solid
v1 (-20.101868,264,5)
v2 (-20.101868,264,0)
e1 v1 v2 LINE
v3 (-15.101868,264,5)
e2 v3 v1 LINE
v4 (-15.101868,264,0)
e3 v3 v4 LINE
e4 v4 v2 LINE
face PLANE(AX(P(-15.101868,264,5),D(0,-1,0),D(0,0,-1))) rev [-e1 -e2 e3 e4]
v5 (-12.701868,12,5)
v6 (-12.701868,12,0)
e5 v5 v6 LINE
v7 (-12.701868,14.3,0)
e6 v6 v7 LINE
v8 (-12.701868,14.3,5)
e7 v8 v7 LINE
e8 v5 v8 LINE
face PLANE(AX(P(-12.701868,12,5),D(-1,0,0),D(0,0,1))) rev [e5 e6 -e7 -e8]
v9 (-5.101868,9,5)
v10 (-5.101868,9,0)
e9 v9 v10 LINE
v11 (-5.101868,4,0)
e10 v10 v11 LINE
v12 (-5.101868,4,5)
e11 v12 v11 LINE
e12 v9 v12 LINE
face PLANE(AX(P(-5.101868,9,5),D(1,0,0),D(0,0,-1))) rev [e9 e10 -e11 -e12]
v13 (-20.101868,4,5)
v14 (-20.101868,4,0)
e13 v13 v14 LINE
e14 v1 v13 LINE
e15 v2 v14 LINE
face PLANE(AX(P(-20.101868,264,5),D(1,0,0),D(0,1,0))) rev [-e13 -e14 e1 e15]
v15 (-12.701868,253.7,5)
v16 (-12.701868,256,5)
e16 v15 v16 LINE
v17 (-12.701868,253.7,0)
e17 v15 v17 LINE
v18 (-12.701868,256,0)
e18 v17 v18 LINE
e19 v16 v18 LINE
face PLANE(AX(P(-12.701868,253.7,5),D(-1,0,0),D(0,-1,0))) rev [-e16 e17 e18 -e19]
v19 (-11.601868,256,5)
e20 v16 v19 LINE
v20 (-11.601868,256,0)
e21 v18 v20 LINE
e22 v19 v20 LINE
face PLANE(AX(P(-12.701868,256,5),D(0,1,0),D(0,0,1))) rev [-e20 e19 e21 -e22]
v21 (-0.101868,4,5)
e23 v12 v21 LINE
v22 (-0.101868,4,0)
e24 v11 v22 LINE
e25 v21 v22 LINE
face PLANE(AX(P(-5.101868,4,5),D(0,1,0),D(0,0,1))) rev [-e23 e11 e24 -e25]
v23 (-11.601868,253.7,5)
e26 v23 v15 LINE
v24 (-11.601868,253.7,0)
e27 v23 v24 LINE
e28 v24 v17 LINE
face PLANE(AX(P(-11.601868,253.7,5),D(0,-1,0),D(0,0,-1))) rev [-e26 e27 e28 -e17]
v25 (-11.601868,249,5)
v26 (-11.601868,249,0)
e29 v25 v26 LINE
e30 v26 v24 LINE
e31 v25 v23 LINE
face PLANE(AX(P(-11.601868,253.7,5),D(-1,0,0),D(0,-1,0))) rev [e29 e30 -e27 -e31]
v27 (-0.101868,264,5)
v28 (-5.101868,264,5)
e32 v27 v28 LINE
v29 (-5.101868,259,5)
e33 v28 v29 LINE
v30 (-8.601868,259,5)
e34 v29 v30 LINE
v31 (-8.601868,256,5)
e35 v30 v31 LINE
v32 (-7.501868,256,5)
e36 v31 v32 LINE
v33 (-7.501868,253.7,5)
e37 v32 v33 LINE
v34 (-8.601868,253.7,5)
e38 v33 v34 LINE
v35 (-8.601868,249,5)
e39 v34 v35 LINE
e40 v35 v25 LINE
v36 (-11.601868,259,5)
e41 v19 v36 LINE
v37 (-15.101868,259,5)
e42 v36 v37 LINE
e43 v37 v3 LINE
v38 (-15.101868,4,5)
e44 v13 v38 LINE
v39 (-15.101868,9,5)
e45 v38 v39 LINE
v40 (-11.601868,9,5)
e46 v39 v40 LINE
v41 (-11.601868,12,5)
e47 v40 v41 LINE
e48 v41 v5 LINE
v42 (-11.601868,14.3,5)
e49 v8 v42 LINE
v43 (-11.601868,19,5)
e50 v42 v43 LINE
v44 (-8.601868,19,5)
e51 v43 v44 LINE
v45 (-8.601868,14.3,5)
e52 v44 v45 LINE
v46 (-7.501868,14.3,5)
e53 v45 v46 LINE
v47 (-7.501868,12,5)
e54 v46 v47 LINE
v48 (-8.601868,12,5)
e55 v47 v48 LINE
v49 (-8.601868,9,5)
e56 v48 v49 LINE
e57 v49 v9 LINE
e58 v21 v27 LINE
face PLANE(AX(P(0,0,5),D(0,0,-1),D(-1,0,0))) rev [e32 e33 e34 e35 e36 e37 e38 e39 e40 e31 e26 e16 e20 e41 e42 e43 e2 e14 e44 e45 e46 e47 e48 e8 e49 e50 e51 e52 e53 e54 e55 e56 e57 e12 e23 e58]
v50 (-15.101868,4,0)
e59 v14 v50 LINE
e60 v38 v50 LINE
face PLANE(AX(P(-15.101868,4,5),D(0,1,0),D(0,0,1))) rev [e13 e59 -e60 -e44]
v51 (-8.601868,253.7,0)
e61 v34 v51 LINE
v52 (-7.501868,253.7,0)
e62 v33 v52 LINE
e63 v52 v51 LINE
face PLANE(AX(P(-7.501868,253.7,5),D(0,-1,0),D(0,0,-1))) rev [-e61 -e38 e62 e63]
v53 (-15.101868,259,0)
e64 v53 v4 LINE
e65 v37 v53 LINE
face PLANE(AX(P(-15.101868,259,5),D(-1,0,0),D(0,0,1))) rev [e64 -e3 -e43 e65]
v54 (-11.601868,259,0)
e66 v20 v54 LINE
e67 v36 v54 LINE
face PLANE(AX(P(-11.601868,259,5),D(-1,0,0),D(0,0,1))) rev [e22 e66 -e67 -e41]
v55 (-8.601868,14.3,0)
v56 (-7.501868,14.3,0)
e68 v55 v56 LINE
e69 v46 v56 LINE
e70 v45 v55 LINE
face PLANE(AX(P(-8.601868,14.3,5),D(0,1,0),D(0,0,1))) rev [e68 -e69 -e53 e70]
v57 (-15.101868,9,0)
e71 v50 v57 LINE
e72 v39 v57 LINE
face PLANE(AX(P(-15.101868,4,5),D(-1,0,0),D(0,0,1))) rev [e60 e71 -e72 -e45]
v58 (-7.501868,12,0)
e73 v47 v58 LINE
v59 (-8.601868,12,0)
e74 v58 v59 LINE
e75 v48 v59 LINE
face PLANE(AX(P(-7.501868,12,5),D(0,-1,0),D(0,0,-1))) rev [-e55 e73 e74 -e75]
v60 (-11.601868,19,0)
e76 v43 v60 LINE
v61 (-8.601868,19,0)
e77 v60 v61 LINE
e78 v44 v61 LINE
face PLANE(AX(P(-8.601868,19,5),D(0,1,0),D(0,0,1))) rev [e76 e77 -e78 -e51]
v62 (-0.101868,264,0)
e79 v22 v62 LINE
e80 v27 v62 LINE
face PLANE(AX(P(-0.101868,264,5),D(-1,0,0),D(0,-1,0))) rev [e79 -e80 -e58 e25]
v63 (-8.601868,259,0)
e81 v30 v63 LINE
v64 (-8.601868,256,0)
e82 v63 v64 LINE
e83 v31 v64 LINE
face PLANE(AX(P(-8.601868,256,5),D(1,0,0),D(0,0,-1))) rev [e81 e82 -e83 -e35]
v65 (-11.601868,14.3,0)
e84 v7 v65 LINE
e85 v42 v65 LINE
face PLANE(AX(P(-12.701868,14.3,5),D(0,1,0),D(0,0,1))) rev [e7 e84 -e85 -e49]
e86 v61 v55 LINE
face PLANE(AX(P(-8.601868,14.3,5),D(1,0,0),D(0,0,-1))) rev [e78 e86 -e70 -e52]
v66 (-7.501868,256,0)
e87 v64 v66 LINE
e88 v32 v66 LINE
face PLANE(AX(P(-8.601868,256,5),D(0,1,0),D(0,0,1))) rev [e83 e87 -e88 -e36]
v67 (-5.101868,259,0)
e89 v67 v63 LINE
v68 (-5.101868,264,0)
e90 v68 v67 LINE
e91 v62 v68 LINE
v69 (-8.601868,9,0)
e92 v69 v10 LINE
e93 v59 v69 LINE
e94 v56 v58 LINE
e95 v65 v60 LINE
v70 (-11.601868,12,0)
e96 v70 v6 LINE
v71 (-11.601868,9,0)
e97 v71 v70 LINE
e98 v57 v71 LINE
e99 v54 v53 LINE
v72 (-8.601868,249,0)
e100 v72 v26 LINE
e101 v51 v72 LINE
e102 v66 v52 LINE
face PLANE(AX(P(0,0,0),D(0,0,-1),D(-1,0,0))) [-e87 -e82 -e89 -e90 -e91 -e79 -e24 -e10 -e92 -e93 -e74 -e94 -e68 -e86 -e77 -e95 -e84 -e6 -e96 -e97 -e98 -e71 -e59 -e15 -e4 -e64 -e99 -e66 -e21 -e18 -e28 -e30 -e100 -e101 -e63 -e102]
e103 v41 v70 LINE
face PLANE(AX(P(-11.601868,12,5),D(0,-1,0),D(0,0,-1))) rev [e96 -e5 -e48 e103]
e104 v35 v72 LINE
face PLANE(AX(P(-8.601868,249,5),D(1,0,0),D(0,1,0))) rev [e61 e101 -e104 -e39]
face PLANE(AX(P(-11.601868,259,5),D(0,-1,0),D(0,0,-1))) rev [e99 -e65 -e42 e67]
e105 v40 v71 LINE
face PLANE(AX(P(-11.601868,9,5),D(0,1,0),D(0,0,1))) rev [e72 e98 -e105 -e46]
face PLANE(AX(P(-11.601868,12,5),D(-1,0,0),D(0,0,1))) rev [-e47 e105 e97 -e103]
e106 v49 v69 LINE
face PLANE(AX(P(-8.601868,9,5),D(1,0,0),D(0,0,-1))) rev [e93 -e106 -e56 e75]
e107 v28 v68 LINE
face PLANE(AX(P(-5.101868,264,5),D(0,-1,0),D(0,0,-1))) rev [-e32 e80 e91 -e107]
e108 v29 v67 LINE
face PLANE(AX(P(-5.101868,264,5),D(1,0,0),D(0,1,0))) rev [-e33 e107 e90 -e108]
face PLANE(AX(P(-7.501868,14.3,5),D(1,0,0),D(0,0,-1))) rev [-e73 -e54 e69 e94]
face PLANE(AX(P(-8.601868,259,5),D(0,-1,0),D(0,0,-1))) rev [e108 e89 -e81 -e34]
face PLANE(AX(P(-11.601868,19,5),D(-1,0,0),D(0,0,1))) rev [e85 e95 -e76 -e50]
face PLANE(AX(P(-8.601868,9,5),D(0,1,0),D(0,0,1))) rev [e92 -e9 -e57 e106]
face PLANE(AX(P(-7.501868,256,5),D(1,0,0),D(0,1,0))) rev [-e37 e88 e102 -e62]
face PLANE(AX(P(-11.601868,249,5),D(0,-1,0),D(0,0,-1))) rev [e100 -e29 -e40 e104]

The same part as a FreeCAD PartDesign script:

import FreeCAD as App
import Part
import Sketcher

V = App.Vector

doc = App.newDocument("Part")
body = doc.addObject("PartDesign::Body", "Body")

sketch1 = body.newObject("Sketcher::SketchObject", "Sketch")
sketch1.AttachmentSupport = (doc.getObject("XY_Plane"), [""])
sketch1.MapMode = "FlatFace"
sketch1.addGeometry([
    Part.LineSegment(V(-15.1, 9, 0), V(-11.6, 9, 0)),
    Part.LineSegment(V(-11.6, 9, 0), V(-11.6, 12, 0)),
    Part.LineSegment(V(-11.6, 12, 0), V(-12.7, 12, 0)),
    Part.LineSegment(V(-12.7, 12, 0), V(-12.7, 14.3, 0)),
    Part.LineSegment(V(-12.7, 14.3, 0), V(-11.6, 14.3, 0)),
    Part.LineSegment(V(-11.6, 14.3, 0), V(-11.6, 19, 0)),
    Part.LineSegment(V(-11.6, 19, 0), V(-8.6, 19, 0)),
    Part.LineSegment(V(-8.6, 19, 0), V(-8.6, 14.3, 0)),
    Part.LineSegment(V(-8.6, 14.3, 0), V(-7.5, 14.3, 0)),
    Part.LineSegment(V(-7.5, 14.3, 0), V(-7.5, 12, 0)),
    Part.LineSegment(V(-7.5, 12, 0), V(-8.6, 12, 0)),
    Part.LineSegment(V(-8.6, 12, 0), V(-8.6, 9, 0)),
    Part.LineSegment(V(-8.6, 9, 0), V(-5.1, 9, 0)),
    Part.LineSegment(V(-5.1, 9, 0), V(-5.1, 4, 0)),
    Part.LineSegment(V(-5.1, 4, 0), V(-0.1, 4, 0)),
    Part.LineSegment(V(-0.1, 4, 0), V(-0.1, 264, 0)),
    Part.LineSegment(V(-0.1, 264, 0), V(-5.1, 264, 0)),
    Part.LineSegment(V(-5.1, 264, 0), V(-5.1, 259, 0)),
    Part.LineSegment(V(-5.1, 259, 0), V(-8.6, 259, 0)),
    Part.LineSegment(V(-8.6, 259, 0), V(-8.6, 256, 0)),
    Part.LineSegment(V(-8.6, 256, 0), V(-7.5, 256, 0)),
    Part.LineSegment(V(-7.5, 256, 0), V(-7.5, 253.7, 0)),
    Part.LineSegment(V(-7.5, 253.7, 0), V(-8.6, 253.7, 0)),
    Part.LineSegment(V(-8.6, 253.7, 0), V(-8.6, 249, 0)),
    Part.LineSegment(V(-8.6, 249, 0), V(-11.6, 249, 0)),
    Part.LineSegment(V(-11.6, 249, 0), V(-11.6, 253.7, 0)),
    Part.LineSegment(V(-11.6, 253.7, 0), V(-12.7, 253.7, 0)),
    Part.LineSegment(V(-12.7, 253.7, 0), V(-12.7, 256, 0)),
    Part.LineSegment(V(-12.7, 256, 0), V(-11.6, 256, 0)),
    Part.LineSegment(V(-11.6, 256, 0), V(-11.6, 259, 0)),
    Part.LineSegment(V(-11.6, 259, 0), V(-15.1, 259, 0)),
    Part.LineSegment(V(-15.1, 259, 0), V(-15.1, 264, 0)),
    Part.LineSegment(V(-15.1, 264, 0), V(-20.1, 264, 0)),
    Part.LineSegment(V(-20.1, 264, 0), V(-20.1, 4, 0)),
    Part.LineSegment(V(-20.1, 4, 0), V(-15.1, 4, 0)),
    Part.LineSegment(V(-15.1, 4, 0), V(-15.1, 9, 0)),
], False)
sketch1.addConstraint([
    Sketcher.Constraint("Coincident", 0, 2, 1, 1),
    Sketcher.Constraint("Coincident", 1, 2, 2, 1),
    Sketcher.Constraint("Coincident", 2, 2, 3, 1),
    Sketcher.Constraint("Coincident", 3, 2, 4, 1),
    Sketcher.Constraint("Coincident", 4, 2, 5, 1),
    Sketcher.Constraint("Coincident", 5, 2, 6, 1),
    Sketcher.Constraint("Coincident", 6, 2, 7, 1),
    Sketcher.Constraint("Coincident", 7, 2, 8, 1),
    Sketcher.Constraint("Coincident", 8, 2, 9, 1),
    Sketcher.Constraint("Coincident", 9, 2, 10, 1),
    Sketcher.Constraint("Coincident", 10, 2, 11, 1),
    Sketcher.Constraint("Coincident", 11, 2, 12, 1),
    Sketcher.Constraint("Coincident", 12, 2, 13, 1),
    Sketcher.Constraint("Coincident", 13, 2, 14, 1),
    Sketcher.Constraint("Coincident", 14, 2, 15, 1),
    Sketcher.Constraint("Coincident", 15, 2, 16, 1),
    Sketcher.Constraint("Coincident", 16, 2, 17, 1),
    Sketcher.Constraint("Coincident", 17, 2, 18, 1),
    Sketcher.Constraint("Coincident", 18, 2, 19, 1),
    Sketcher.Constraint("Coincident", 19, 2, 20, 1),
    Sketcher.Constraint("Coincident", 20, 2, 21, 1),
    Sketcher.Constraint("Coincident", 21, 2, 22, 1),
    Sketcher.Constraint("Coincident", 22, 2, 23, 1),
    Sketcher.Constraint("Coincident", 23, 2, 24, 1),
    Sketcher.Constraint("Coincident", 24, 2, 25, 1),
    Sketcher.Constraint("Coincident", 25, 2, 26, 1),
    Sketcher.Constraint("Coincident", 26, 2, 27, 1),
    Sketcher.Constraint("Coincident", 27, 2, 28, 1),
    Sketcher.Constraint("Coincident", 28, 2, 29, 1),
    Sketcher.Constraint("Coincident", 29, 2, 30, 1),
    Sketcher.Constraint("Coincident", 30, 2, 31, 1),
    Sketcher.Constraint("Coincident", 31, 2, 32, 1),
    Sketcher.Constraint("Coincident", 32, 2, 33, 1),
    Sketcher.Constraint("Coincident", 33, 2, 34, 1),
    Sketcher.Constraint("Coincident", 34, 2, 35, 1),
    Sketcher.Constraint("Coincident", 35, 2, 0, 1),
    Sketcher.Constraint("Horizontal", 0),
    Sketcher.Constraint("Vertical", 1),
    Sketcher.Constraint("Horizontal", 2),
    Sketcher.Constraint("Vertical", 3),
    Sketcher.Constraint("Horizontal", 4),
    Sketcher.Constraint("Vertical", 5),
    Sketcher.Constraint("Horizontal", 6),
    Sketcher.Constraint("Vertical", 7),
    Sketcher.Constraint("Horizontal", 8),
    Sketcher.Constraint("Vertical", 9),
    Sketcher.Constraint("Horizontal", 10),
    Sketcher.Constraint("Vertical", 11),
    Sketcher.Constraint("Horizontal", 12),
    Sketcher.Constraint("Vertical", 13),
    Sketcher.Constraint("Horizontal", 14),
    Sketcher.Constraint("Vertical", 15),
    Sketcher.Constraint("Horizontal", 16),
    Sketcher.Constraint("Vertical", 17),
    Sketcher.Constraint("Horizontal", 18),
    Sketcher.Constraint("Vertical", 19),
    Sketcher.Constraint("Horizontal", 20),
    Sketcher.Constraint("Vertical", 21),
    Sketcher.Constraint("Horizontal", 22),
    Sketcher.Constraint("Vertical", 23),
    Sketcher.Constraint("Horizontal", 24),
    Sketcher.Constraint("Vertical", 25),
    Sketcher.Constraint("Horizontal", 26),
    Sketcher.Constraint("Vertical", 27),
    Sketcher.Constraint("Horizontal", 28),
    Sketcher.Constraint("Vertical", 29),
    Sketcher.Constraint("Horizontal", 30),
    Sketcher.Constraint("Vertical", 31),
    Sketcher.Constraint("Horizontal", 32),
    Sketcher.Constraint("Vertical", 33),
    Sketcher.Constraint("Horizontal", 34),
    Sketcher.Constraint("Vertical", 35),
    Sketcher.Constraint("Horizontal", 4, 2, 7, 2),
    Sketcher.Constraint("Horizontal", 2, 2, 9, 2),
    Sketcher.Constraint("Horizontal", 0, 2, 11, 2),
    Sketcher.Constraint("Horizontal", 22, 2, 25, 2),
    Sketcher.Constraint("Horizontal", 20, 2, 27, 2),
    Sketcher.Constraint("Horizontal", 18, 2, 29, 2),
    Sketcher.Constraint("Horizontal", 16, 2, 31, 2),
    Sketcher.Constraint("Horizontal", 14, 2, 33, 2),
    Sketcher.Constraint("Vertical", 1, 2, 4, 2),
    Sketcher.Constraint("Vertical", 7, 2, 10, 2),
    Sketcher.Constraint("Vertical", 13, 2, 16, 2),
    Sketcher.Constraint("Vertical", 11, 2, 18, 2),
    Sketcher.Constraint("Vertical", 9, 2, 20, 2),
    Sketcher.Constraint("Vertical", 19, 2, 22, 2),
    Sketcher.Constraint("Vertical", 5, 2, 24, 2),
    Sketcher.Constraint("Vertical", 3, 2, 26, 2),
    Sketcher.Constraint("Vertical", 25, 2, 28, 2),
    Sketcher.Constraint("Vertical", 31, 2, 34, 2),
    Sketcher.Constraint("Equal", 4, 8),
    Sketcher.Constraint("Equal", 0, 12),
    Sketcher.Constraint("Equal", 16, 32),
    Sketcher.Constraint("Equal", 24, 1),
    Sketcher.Constraint("Equal", 34, 13),
    Sketcher.Constraint("Equal", 13, 17),
    Sketcher.Constraint("Equal", 11, 19),
    Sketcher.Constraint("Equal", 9, 21),
    Sketcher.Constraint("Equal", 7, 23),
    Sketcher.Constraint("DistanceX", 6, 1, 6, 2, 3.0),
    Sketcher.Constraint("DistanceX", 14, 1, 14, 2, 5.0),
    Sketcher.Constraint("DistanceY", 15, 1, 15, 2, 260.0),
    Sketcher.Constraint("DistanceX", 0, 1, 0, 2, 3.5),
    Sketcher.Constraint("DistanceX", 2, 2, 2, 1, 1.1),
    Sketcher.Constraint("DistanceY", 3, 1, 3, 2, 2.3),
    Sketcher.Constraint("DistanceY", 5, 1, 5, 2, 4.7),
    Sketcher.Constraint("DistanceY", -1, 1, 0, 2, 9.0),
    Sketcher.Constraint("DistanceX", 0, 2, -1, 1, 11.601868),
])
pad1 = body.newObject("PartDesign::Pad", "Pad")
pad1.Profile = sketch1
pad1.Length = 5

doc.recompute()
